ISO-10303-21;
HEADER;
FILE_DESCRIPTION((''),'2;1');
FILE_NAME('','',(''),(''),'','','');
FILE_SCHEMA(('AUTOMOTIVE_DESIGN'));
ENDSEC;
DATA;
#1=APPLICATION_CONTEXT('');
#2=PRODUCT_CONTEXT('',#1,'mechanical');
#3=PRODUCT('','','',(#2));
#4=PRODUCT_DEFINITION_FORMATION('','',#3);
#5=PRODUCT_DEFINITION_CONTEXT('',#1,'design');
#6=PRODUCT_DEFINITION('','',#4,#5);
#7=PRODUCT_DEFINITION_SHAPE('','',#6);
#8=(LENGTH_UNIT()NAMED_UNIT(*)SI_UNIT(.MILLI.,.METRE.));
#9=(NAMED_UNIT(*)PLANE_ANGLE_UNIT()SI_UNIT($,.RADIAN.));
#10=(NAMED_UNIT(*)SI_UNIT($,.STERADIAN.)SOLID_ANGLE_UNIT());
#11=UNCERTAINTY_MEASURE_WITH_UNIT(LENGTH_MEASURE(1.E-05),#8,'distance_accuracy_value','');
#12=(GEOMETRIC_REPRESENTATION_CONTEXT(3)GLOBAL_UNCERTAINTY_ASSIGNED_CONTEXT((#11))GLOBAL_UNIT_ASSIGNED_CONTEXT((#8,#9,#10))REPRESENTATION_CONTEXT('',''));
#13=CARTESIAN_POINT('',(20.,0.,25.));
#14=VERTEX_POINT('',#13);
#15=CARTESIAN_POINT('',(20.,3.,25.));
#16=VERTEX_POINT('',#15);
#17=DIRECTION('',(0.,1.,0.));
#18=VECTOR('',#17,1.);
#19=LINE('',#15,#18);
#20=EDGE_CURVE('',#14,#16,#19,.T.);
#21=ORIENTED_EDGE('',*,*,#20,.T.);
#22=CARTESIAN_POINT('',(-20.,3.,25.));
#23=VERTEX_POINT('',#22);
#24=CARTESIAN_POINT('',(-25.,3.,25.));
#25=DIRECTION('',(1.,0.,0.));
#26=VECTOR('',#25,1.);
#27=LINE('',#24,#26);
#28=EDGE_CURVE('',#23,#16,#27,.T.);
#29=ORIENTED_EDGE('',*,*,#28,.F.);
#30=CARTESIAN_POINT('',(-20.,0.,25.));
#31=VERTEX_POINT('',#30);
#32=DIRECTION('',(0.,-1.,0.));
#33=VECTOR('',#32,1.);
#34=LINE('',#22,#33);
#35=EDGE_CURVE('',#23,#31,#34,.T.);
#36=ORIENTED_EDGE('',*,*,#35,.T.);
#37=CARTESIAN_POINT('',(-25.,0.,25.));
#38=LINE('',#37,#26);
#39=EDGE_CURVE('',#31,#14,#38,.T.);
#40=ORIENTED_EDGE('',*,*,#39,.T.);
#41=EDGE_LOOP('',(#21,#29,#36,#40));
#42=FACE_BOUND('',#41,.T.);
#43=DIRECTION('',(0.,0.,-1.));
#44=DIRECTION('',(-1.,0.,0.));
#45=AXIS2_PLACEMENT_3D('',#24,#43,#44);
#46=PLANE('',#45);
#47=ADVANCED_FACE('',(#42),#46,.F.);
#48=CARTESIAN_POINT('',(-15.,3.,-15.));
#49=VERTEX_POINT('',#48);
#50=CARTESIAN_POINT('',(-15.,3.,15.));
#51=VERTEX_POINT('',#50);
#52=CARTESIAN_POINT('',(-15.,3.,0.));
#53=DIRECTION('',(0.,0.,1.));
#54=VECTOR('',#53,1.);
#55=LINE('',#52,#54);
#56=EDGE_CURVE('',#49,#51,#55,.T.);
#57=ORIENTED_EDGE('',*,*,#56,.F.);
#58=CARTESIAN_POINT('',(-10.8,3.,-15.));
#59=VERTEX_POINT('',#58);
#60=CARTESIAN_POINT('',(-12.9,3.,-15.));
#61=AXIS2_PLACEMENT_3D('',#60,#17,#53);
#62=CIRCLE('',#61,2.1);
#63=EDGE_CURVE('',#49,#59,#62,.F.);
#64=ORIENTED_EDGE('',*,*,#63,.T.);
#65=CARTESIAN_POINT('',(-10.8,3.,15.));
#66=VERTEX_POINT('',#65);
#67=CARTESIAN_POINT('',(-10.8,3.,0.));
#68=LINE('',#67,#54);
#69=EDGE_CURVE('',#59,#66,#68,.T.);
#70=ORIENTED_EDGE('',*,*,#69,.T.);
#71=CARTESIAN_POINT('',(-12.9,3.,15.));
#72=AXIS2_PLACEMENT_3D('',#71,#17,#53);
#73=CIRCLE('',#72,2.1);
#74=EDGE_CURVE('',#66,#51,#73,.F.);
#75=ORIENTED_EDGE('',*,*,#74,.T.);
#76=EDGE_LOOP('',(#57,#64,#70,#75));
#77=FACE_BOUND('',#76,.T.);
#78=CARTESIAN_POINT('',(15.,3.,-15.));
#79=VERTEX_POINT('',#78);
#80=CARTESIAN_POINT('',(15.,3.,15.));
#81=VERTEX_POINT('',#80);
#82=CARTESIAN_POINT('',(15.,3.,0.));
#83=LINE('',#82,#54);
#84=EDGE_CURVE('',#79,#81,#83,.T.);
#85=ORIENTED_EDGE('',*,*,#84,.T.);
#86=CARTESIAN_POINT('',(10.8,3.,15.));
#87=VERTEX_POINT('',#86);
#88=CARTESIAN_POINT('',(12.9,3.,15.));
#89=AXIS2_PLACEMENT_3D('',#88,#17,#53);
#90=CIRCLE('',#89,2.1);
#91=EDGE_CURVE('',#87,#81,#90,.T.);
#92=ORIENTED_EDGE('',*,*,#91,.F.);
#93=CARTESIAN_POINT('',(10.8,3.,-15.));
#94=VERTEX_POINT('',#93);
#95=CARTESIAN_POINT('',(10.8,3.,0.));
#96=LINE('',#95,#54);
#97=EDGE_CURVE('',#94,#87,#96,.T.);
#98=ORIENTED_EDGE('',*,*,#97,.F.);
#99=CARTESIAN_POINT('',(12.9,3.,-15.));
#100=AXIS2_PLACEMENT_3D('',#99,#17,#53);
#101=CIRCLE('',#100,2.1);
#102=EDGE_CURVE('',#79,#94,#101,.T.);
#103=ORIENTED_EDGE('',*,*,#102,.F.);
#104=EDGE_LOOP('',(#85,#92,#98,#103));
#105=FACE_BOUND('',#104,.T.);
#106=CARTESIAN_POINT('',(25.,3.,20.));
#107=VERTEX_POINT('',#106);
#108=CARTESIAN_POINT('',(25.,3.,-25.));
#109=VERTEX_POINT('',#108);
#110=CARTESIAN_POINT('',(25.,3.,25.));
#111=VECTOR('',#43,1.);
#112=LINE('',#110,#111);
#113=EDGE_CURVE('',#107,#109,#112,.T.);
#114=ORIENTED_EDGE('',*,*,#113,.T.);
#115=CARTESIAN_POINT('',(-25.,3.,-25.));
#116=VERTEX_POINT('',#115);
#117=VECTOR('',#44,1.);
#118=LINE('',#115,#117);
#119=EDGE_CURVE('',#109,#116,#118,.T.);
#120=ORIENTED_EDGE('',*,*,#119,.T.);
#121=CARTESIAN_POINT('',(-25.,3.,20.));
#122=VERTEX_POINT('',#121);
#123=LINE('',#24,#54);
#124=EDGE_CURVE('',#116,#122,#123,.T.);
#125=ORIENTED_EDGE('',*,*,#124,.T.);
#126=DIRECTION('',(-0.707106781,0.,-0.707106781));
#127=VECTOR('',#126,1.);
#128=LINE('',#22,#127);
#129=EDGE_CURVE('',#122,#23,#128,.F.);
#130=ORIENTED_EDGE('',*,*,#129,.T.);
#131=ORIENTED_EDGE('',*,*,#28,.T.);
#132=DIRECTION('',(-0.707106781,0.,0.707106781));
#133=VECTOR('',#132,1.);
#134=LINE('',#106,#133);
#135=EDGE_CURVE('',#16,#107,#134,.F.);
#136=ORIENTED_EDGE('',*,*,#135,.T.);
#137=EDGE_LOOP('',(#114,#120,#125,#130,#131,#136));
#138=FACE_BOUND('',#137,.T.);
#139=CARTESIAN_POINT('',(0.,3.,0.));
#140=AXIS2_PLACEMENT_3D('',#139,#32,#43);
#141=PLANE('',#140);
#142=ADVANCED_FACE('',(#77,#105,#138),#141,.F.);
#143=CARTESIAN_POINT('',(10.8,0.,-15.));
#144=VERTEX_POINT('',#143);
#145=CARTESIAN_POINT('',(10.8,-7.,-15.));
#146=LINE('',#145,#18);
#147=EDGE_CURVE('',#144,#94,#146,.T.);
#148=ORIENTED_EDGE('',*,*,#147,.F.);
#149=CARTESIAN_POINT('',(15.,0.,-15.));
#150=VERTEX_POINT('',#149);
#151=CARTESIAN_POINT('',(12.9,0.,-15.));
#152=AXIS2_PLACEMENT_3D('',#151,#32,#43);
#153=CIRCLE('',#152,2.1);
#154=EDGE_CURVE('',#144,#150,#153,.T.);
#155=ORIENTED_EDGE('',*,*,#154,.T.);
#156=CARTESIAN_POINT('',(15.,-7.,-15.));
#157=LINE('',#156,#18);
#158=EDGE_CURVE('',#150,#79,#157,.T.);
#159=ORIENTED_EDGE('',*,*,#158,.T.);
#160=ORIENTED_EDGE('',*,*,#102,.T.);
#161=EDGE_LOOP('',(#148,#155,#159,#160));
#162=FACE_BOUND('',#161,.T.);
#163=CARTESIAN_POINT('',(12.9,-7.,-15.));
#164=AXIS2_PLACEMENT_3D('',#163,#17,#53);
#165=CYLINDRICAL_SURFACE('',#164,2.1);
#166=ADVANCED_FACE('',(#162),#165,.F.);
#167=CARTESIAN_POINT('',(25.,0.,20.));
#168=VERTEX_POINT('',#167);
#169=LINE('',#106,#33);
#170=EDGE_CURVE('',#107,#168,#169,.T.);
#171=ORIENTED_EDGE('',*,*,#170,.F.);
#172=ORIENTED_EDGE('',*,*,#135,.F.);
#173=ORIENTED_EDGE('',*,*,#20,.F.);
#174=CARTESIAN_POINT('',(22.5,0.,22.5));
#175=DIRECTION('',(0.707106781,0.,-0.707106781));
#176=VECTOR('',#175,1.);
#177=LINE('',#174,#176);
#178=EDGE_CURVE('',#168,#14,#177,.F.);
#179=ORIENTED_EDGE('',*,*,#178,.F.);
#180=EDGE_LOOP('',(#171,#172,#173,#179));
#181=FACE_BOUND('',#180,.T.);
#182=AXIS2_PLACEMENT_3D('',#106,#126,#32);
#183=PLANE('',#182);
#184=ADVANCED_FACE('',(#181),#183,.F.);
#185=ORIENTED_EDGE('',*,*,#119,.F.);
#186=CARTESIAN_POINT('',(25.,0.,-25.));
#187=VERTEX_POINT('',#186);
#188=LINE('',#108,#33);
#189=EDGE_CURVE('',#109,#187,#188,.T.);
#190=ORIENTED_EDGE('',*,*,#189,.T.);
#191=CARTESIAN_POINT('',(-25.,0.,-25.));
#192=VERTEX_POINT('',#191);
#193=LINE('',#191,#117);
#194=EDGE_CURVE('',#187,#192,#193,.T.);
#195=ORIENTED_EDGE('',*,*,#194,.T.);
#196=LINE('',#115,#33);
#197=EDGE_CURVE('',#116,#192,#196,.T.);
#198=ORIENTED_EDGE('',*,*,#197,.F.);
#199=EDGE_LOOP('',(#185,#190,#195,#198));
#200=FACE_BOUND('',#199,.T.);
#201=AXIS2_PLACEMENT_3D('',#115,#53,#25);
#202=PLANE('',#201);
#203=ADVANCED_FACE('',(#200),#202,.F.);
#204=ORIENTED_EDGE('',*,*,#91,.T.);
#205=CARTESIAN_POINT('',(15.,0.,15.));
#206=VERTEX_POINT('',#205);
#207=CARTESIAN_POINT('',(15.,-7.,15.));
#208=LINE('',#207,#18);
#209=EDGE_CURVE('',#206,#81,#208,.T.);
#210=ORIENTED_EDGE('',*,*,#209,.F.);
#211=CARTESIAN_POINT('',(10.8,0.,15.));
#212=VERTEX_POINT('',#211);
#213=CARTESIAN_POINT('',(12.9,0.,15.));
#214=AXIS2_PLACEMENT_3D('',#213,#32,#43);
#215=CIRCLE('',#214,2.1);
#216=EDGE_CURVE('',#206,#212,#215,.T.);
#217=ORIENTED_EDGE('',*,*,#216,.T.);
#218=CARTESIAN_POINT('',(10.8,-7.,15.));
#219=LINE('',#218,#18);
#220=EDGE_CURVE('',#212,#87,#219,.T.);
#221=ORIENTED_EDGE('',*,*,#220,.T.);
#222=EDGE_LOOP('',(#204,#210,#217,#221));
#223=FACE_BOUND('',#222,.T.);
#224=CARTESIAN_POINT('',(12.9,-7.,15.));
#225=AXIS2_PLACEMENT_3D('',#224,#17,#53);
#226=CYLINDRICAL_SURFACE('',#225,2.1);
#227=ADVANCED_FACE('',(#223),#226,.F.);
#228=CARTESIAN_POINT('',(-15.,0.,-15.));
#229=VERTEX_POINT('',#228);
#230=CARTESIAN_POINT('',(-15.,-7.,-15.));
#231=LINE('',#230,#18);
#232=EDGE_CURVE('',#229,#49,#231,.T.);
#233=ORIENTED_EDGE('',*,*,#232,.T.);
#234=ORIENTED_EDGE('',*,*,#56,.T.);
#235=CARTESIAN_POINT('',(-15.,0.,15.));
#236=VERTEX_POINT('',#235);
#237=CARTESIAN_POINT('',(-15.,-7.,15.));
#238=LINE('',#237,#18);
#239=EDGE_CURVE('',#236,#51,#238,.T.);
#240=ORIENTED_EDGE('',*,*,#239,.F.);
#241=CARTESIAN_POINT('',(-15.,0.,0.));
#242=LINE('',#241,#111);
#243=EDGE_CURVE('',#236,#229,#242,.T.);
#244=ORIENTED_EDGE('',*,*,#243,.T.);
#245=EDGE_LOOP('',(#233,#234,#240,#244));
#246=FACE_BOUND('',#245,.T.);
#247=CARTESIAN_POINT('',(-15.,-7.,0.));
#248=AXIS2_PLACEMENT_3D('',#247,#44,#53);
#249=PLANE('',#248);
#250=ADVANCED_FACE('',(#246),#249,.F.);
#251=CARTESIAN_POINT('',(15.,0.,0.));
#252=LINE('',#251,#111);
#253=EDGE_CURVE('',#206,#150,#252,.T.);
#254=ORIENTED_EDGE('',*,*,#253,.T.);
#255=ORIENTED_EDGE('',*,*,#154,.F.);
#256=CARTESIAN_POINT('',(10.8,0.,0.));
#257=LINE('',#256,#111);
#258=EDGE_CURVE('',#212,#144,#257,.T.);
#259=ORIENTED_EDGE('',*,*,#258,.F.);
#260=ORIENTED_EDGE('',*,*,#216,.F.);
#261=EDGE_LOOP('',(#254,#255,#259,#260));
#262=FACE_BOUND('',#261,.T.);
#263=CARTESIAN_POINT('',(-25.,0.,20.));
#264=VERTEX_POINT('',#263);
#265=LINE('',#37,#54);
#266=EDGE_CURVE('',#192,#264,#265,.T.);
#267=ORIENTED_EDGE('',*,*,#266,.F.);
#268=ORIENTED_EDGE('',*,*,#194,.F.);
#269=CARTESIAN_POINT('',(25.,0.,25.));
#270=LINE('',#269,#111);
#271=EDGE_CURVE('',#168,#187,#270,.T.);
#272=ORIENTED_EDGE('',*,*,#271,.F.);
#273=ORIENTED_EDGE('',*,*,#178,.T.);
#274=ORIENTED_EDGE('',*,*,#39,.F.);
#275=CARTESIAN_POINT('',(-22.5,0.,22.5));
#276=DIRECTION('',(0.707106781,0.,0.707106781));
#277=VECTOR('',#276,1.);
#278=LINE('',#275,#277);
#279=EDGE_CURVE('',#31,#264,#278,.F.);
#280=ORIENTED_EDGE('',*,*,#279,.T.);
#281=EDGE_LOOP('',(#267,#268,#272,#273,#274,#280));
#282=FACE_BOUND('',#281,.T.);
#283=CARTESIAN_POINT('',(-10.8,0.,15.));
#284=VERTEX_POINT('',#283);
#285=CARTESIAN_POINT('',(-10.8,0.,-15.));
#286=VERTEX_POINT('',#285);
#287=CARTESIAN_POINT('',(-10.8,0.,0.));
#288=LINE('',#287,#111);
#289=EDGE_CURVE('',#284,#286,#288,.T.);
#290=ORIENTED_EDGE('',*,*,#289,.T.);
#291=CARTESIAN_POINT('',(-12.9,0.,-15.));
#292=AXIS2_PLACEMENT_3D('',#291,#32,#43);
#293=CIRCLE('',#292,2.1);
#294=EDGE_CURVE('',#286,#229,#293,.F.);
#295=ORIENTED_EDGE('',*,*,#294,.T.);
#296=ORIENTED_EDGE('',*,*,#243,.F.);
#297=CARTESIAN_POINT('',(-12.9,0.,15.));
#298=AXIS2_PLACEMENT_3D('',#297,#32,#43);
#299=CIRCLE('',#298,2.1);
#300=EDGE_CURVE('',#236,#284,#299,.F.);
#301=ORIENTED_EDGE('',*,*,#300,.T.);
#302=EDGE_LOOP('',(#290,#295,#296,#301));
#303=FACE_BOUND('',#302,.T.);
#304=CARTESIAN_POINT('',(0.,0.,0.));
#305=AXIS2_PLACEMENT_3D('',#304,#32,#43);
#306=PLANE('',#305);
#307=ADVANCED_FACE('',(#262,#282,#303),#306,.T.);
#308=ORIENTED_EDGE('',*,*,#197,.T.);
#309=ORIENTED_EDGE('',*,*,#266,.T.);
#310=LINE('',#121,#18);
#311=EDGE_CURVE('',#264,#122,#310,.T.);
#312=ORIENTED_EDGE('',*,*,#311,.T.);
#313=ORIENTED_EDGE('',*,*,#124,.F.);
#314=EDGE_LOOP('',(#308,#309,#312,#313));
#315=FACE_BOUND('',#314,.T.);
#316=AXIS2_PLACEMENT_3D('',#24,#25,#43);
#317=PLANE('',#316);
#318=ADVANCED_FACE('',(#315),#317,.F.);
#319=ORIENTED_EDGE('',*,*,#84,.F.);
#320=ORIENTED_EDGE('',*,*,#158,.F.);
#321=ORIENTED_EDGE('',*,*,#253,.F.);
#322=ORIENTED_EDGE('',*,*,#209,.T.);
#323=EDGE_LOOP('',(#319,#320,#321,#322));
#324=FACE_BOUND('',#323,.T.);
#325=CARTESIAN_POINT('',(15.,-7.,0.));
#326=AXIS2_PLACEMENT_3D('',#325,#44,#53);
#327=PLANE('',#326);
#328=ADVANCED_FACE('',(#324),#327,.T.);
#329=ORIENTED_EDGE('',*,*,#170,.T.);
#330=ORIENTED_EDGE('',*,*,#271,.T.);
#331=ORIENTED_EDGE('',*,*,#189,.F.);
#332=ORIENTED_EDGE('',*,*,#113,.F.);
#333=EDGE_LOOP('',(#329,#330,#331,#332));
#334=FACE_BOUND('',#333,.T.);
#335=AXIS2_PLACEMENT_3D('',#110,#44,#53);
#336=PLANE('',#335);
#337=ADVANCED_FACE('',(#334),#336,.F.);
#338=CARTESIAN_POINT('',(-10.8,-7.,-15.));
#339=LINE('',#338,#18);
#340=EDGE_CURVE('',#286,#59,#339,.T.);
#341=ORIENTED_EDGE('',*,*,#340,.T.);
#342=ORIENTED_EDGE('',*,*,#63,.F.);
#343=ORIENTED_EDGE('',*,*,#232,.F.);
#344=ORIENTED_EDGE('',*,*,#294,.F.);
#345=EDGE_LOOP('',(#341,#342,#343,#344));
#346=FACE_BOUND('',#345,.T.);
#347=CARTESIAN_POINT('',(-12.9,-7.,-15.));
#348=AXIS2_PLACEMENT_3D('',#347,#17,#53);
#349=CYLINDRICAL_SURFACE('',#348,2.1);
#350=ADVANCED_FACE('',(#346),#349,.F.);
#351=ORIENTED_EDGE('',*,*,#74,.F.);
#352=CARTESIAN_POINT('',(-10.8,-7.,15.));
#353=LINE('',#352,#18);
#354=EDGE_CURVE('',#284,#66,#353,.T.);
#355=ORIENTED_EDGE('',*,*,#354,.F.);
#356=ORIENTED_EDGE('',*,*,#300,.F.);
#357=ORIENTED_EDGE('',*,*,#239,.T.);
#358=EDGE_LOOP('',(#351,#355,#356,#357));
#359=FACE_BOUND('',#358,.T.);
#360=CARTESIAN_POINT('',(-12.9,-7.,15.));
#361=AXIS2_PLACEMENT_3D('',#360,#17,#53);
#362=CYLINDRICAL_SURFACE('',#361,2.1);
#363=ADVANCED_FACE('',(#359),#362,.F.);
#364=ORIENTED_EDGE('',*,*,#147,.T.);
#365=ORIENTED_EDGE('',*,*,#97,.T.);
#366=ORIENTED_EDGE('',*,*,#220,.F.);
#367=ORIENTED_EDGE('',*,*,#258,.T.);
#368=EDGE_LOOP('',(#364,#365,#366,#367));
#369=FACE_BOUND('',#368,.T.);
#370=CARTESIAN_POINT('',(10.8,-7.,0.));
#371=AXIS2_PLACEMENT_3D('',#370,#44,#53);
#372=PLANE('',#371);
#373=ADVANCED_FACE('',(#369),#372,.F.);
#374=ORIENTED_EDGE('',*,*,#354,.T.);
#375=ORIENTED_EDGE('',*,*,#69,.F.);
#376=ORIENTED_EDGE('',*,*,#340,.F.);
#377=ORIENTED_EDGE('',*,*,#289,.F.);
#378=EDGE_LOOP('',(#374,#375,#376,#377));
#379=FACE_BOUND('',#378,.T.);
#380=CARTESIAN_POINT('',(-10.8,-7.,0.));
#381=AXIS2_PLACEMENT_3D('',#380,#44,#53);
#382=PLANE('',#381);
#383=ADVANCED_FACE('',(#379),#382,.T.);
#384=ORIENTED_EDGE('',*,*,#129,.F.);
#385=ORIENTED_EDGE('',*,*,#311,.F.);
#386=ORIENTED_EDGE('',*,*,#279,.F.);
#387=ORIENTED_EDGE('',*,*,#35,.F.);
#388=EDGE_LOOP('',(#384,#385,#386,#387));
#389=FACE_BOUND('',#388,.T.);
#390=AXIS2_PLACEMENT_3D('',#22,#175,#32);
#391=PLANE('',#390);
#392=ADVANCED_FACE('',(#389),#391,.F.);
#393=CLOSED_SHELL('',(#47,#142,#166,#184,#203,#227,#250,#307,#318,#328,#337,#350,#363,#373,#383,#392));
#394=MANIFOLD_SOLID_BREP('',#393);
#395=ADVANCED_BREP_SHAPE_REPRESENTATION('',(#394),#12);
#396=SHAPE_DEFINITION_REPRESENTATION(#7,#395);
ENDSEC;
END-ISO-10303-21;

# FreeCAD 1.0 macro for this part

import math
import FreeCAD as App
import Part
import Sketcher


def edges_at(feature, points):
    """Names of the edges that pass closest to the given points."""
    edges = feature.Shape.Edges
    near = lambda p: min(range(len(edges)), key=lambda i: edges[i].distToShape(Part.Vertex(*p))[0])
    return sorted({f"Edge{near(p) + 1}" for p in points})

doc = App.newDocument("Part")
body = doc.addObject("PartDesign::Body", "Body")

# Sketch on XZ plane
sketch1 = body.newObject("Sketcher::SketchObject", "Sketch")
sketch1.AttachmentSupport = (doc.getObject("XZ_Plane"), [""])
sketch1.MapMode = "FlatFace"
sketch1.addGeometry([
    Part.LineSegment(App.Vector(-25, -25, 0), App.Vector(-25, 25, 0)),
    Part.LineSegment(App.Vector(-25, 25, 0), App.Vector(25, 25, 0)),
    Part.LineSegment(App.Vector(25, 25, 0), App.Vector(25, -25, 0)),
    Part.LineSegment(App.Vector(25, -25, 0), App.Vector(-25, -25, 0)),
], False)
sketch1.addConstraint([
    Sketcher.Constraint("Coincident", 0, 2, 1, 1),
    Sketcher.Constraint("Coincident", 1, 2, 2, 1),
    Sketcher.Constraint("Coincident", 2, 2, 3, 1),
    Sketcher.Constraint("Coincident", 3, 2, 0, 1),
    Sketcher.Constraint("Vertical", 0),
    Sketcher.Constraint("Horizontal", 1),
    Sketcher.Constraint("Vertical", 2),
    Sketcher.Constraint("Horizontal", 3),
    Sketcher.Constraint("Symmetric", 0, 2, 2, 2, -1, 1),
    Sketcher.Constraint("Equal", 3, 0),
    Sketcher.Constraint("DistanceX", 1, 1, 1, 2, 50.0),
])
pad1 = body.newObject("PartDesign::Pad", "Pad")
pad1.Profile = sketch1
pad1.Length = 3
pad1.Reversed = True
doc.recompute()

chamfer = body.newObject("PartDesign::Chamfer", "Chamfer")
chamfer.Base = (pad1, edges_at(pad1, [(25, 1.5, 25), (-25, 1.5, 25)]))
chamfer.Size = 5

# Sketch on XZ plane
sketch2 = body.newObject("Sketcher::SketchObject", "Sketch001")
sketch2.AttachmentSupport = (doc.getObject("XZ_Plane"), [""])
sketch2.MapMode = "FlatFace"
sketch2.AttachmentOffset = App.Placement(App.Vector(0, 0, -3), App.Rotation())
sketch2.addGeometry([
    Part.LineSegment(App.Vector(-10.8, 15, 0), App.Vector(-10.8, -15, 0)),  # 0
    Part.ArcOfCircle(Part.Circle(App.Vector(-12.9, -15, 0), App.Vector(0, 0, 1), 2.1), math.radians(180), math.radians(360)),  # 1
    Part.LineSegment(App.Vector(-15, -15, 0), App.Vector(-15, 15, 0)),  # 2
    Part.ArcOfCircle(Part.Circle(App.Vector(-12.9, 15, 0), App.Vector(0, 0, 1), 2.1), math.radians(0), math.radians(180)),  # 3
    Part.LineSegment(App.Vector(15, 15, 0), App.Vector(15, -15, 0)),  # 4
    Part.ArcOfCircle(Part.Circle(App.Vector(12.9, -15, 0), App.Vector(0, 0, 1), 2.1), math.radians(180), math.radians(360)),  # 5
    Part.LineSegment(App.Vector(10.8, -15, 0), App.Vector(10.8, 15, 0)),  # 6
    Part.ArcOfCircle(Part.Circle(App.Vector(12.9, 15, 0), App.Vector(0, 0, 1), 2.1), math.radians(0), math.radians(180)),  # 7
], False)
sketch2.addConstraint([
    Sketcher.Constraint("Tangent", 0, 2, 1, 2),
    Sketcher.Constraint("Tangent", 1, 1, 2, 1),
    Sketcher.Constraint("Tangent", 2, 2, 3, 2),
    Sketcher.Constraint("Tangent", 3, 1, 0, 1),
    Sketcher.Constraint("Tangent", 4, 2, 5, 2),
    Sketcher.Constraint("Tangent", 5, 1, 6, 1),
    Sketcher.Constraint("Tangent", 6, 2, 7, 2),
    Sketcher.Constraint("Tangent", 7, 1, 4, 1),
    Sketcher.Constraint("Vertical", 0),
    Sketcher.Constraint("Vertical", 2),
    Sketcher.Constraint("Vertical", 4),
    Sketcher.Constraint("Vertical", 6),
    Sketcher.Constraint("Equal", 3, 5),
    Sketcher.Constraint("Symmetric", 3, 3, 5, 3, -1, 1),
    Sketcher.Constraint("Horizontal", 1, 3, 5, 3),
    Sketcher.Constraint("Horizontal", 3, 3, 7, 3),
    Sketcher.Constraint("Radius", 1, 2.1),
    Sketcher.Constraint("DistanceY", 0, 2, 0, 1, 30.0),
    Sketcher.Constraint("DistanceX", 1, 1, -1, 1, 15.0),
])
pocket1 = body.newObject("PartDesign::Pocket", "Pocket")
pocket1.Profile = sketch2
pocket1.Length = 10
pocket1.Reversed = True

doc.recompute()
